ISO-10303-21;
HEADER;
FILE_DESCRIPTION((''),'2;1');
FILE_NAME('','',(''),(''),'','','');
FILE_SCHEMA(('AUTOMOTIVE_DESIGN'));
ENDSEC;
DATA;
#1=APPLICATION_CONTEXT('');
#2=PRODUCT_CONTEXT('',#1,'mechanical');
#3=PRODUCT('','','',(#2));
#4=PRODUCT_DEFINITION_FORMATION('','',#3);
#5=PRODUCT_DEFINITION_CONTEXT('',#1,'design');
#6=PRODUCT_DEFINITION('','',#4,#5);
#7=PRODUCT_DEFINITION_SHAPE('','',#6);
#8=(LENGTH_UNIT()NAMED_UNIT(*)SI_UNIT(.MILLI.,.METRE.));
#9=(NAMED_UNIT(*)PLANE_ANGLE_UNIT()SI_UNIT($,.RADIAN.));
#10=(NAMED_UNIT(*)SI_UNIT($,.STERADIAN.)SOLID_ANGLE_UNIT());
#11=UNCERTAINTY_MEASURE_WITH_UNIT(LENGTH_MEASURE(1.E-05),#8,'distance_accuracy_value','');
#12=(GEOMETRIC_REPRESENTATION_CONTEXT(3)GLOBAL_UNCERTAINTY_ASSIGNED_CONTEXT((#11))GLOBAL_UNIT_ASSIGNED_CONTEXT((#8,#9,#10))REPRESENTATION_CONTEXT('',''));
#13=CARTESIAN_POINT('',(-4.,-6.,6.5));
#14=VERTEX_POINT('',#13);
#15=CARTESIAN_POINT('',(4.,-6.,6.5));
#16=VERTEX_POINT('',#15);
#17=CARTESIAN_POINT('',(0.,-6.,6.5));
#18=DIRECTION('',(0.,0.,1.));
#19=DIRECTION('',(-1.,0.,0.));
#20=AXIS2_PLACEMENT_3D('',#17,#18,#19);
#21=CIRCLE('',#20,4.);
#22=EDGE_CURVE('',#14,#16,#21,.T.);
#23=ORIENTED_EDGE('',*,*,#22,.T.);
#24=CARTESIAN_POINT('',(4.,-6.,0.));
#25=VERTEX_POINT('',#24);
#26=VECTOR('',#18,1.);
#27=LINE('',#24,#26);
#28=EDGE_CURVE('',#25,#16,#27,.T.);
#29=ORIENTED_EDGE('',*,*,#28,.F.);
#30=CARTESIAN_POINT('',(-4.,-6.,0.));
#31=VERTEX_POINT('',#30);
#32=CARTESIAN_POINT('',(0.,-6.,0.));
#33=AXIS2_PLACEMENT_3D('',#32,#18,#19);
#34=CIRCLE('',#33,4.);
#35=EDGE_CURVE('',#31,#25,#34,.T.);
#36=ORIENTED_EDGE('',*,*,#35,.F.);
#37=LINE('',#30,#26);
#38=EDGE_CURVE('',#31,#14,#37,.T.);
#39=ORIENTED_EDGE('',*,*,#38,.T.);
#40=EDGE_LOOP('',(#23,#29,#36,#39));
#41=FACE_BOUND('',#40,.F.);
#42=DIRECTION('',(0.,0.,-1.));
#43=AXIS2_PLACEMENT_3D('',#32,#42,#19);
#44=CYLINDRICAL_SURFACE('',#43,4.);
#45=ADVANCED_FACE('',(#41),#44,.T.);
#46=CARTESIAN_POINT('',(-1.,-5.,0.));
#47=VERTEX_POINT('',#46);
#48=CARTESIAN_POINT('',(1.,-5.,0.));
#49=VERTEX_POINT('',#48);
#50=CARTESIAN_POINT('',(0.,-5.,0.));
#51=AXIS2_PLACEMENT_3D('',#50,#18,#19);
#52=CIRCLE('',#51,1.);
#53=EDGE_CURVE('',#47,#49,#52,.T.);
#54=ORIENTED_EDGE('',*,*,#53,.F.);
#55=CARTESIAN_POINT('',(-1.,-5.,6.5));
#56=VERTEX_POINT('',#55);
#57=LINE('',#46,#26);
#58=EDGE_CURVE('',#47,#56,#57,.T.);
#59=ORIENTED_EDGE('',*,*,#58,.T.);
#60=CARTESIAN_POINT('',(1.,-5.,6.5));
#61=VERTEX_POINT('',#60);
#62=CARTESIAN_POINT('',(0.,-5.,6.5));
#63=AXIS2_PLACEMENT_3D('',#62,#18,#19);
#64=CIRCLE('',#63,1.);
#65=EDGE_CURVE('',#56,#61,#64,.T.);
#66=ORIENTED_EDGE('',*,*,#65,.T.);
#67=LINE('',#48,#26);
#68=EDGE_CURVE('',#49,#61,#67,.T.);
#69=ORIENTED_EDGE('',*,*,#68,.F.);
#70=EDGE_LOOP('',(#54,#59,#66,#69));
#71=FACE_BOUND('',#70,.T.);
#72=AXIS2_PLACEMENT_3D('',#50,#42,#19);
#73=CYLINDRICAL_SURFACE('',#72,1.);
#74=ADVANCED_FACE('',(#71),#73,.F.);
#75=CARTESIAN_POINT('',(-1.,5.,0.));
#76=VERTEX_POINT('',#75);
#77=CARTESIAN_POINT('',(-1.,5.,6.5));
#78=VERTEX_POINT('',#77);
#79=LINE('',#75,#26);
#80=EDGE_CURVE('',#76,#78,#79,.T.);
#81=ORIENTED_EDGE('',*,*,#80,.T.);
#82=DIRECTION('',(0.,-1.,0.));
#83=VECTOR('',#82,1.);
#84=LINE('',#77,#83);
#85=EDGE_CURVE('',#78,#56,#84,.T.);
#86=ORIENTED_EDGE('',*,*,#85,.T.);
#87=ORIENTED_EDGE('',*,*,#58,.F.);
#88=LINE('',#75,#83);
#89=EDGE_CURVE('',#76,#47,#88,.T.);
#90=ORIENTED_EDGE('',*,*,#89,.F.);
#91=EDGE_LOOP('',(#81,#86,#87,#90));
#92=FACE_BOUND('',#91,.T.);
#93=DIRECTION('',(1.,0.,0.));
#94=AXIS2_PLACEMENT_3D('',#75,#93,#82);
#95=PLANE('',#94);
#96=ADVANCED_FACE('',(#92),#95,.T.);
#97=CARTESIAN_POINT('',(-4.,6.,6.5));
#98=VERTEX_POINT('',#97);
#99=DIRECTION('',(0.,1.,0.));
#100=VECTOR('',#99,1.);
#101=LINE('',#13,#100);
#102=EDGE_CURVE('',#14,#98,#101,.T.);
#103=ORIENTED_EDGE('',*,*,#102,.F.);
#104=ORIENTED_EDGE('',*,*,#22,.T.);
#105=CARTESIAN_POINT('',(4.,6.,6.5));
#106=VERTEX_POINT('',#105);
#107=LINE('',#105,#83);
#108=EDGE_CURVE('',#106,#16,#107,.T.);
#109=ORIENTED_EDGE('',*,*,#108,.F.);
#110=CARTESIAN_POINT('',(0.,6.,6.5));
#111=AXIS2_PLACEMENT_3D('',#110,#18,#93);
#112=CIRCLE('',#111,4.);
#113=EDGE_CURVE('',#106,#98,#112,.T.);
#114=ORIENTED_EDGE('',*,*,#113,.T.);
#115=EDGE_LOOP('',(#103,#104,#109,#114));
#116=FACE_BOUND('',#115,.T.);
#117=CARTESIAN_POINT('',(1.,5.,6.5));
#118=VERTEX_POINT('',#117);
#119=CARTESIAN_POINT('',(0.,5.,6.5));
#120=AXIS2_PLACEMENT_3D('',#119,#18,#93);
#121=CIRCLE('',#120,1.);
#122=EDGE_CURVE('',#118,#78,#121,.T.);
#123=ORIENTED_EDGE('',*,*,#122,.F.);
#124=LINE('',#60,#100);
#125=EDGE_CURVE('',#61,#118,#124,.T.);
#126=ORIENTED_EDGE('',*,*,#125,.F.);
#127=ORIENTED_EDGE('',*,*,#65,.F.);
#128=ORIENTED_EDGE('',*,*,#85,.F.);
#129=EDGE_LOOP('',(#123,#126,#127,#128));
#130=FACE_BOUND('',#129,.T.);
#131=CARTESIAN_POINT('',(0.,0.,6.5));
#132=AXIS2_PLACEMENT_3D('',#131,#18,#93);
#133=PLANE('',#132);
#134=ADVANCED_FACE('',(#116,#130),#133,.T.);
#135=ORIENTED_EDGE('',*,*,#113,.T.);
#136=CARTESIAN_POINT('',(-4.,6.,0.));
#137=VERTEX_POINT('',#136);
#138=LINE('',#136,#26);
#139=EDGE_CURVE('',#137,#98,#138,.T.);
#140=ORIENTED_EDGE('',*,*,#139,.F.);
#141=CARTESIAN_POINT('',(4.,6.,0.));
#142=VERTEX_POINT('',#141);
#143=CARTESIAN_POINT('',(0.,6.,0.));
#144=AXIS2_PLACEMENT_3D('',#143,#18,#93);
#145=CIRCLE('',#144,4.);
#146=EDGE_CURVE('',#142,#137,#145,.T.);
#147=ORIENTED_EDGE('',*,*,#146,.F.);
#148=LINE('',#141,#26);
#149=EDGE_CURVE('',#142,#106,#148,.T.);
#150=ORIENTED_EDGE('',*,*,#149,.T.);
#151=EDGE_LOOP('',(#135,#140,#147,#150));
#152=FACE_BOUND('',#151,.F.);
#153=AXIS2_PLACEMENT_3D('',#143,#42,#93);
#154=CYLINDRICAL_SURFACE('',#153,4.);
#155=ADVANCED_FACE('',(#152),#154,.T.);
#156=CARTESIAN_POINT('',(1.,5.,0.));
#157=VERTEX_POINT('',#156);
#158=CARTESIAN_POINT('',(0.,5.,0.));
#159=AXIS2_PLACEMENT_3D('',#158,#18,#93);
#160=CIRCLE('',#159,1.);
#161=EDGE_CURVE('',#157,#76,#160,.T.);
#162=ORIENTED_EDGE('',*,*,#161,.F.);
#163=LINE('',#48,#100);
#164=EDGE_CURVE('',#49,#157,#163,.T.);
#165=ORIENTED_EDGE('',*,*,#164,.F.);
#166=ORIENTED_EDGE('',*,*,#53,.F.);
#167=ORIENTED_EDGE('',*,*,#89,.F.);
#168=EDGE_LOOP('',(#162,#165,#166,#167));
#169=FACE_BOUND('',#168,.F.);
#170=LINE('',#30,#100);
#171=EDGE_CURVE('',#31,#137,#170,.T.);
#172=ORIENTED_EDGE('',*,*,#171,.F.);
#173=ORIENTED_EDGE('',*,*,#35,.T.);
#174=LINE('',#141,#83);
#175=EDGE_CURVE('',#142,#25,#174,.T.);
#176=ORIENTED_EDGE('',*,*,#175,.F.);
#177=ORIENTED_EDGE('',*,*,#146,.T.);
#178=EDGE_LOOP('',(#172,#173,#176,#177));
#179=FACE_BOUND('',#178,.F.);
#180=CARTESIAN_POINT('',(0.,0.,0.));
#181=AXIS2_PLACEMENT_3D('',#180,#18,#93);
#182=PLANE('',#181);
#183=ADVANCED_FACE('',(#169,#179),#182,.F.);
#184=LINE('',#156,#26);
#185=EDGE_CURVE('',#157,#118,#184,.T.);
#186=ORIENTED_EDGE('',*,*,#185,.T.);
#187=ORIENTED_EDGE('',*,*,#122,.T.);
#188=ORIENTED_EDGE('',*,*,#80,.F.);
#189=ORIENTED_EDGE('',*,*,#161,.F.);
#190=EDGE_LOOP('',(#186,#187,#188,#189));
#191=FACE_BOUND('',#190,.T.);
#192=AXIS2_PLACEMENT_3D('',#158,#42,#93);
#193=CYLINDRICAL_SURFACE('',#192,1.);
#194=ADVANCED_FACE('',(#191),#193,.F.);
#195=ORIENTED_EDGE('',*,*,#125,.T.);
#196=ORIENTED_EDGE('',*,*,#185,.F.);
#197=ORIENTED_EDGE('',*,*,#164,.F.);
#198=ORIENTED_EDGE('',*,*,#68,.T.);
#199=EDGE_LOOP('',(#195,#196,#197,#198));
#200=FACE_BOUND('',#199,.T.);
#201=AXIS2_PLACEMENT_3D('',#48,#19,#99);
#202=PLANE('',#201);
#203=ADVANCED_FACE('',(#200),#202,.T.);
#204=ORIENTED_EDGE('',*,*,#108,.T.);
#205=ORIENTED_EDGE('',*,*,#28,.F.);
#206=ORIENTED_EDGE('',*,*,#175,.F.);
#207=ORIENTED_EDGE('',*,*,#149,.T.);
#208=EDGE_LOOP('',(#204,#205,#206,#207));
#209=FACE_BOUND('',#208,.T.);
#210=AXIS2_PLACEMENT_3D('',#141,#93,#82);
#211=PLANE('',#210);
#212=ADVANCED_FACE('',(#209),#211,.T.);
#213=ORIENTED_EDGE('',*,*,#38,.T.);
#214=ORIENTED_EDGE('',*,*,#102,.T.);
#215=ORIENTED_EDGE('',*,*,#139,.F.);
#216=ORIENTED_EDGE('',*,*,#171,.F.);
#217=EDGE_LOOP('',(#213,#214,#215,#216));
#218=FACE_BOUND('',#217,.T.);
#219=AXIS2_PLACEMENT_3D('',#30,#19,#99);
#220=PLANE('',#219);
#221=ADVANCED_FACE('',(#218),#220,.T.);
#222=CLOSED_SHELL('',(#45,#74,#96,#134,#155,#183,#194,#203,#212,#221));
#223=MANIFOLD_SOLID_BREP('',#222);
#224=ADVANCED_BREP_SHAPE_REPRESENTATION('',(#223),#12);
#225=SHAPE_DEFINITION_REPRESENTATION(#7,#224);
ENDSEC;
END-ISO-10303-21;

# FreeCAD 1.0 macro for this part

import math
import FreeCAD as App
import Part
import Sketcher
Q = App.Units.Quantity

doc = App.newDocument("Part")
body = doc.addObject("PartDesign::Body", "Body")

# Sketch on XY plane
sketch1 = doc.addObject("Sketcher::SketchObject", "Sketch")
body.addObject(sketch1)
sketch1.AttachmentSupport = (doc.XY_Plane, [""])
sketch1.MapMode = "FlatFace"
sketch1.addGeometry([
    Part.LineSegment(App.Vector(-4, 6, 0), App.Vector(-4, -6, 0)),  # 0
    Part.ArcOfCircle(Part.Circle(App.Vector(0, -6, 0), App.Vector(0, 0, 1), 4), math.radians(180), math.radians(360)),  # 1
    Part.LineSegment(App.Vector(4, -6, 0), App.Vector(4, 6, 0)),  # 2
    Part.ArcOfCircle(Part.Circle(App.Vector(0, 6, 0), App.Vector(0, 0, 1), 4), math.radians(0), math.radians(180)),  # 3
    Part.LineSegment(App.Vector(1, 5, 0), App.Vector(1, -5, 0)),  # 4
    Part.ArcOfCircle(Part.Circle(App.Vector(0, -5, 0), App.Vector(0, 0, 1), 1), math.radians(180), math.radians(360)),  # 5
    Part.LineSegment(App.Vector(-1, -5, 0), App.Vector(-1, 5, 0)),  # 6
    Part.ArcOfCircle(Part.Circle(App.Vector(0, 5, 0), App.Vector(0, 0, 1), 1), math.radians(0), math.radians(180)),  # 7
], False)
sketch1.addConstraint([
    Sketcher.Constraint("Tangent", 0, 2, 1, 1),
    Sketcher.Constraint("Tangent", 1, 2, 2, 1),
    Sketcher.Constraint("Tangent", 2, 2, 3, 1),
    Sketcher.Constraint("Tangent", 3, 2, 0, 1),
    Sketcher.Constraint("Tangent", 4, 2, 5, 2),
    Sketcher.Constraint("Tangent", 5, 1, 6, 1),
    Sketcher.Constraint("Tangent", 6, 2, 7, 2),
    Sketcher.Constraint("Tangent", 7, 1, 4, 1),
    Sketcher.Constraint("Vertical", 0),
    Sketcher.Constraint("Vertical", 2),
    Sketcher.Constraint("Vertical", 4),
    Sketcher.Constraint("Vertical", 6),
    Sketcher.Constraint("Symmetric", 1, 3, 3, 3, -1, 1),
    Sketcher.Constraint("Symmetric", 5, 3, 7, 3, -1, 1),
    Sketcher.Constraint("Radius", 5, Q("1 mm")),
    Sketcher.Constraint("DistanceY", 5, 3, -1, 1, Q("5 mm")),
    Sketcher.Constraint("Radius", 1, Q("4 mm")),
    Sketcher.Constraint("DistanceY", 1, 3, 5, 3, Q("1 mm")),
])
pad1 = doc.addObject("PartDesign::Pad", "Pad")
body.addObject(pad1)
pad1.Profile = sketch1
pad1.Length = 6.5

doc.recompute()
